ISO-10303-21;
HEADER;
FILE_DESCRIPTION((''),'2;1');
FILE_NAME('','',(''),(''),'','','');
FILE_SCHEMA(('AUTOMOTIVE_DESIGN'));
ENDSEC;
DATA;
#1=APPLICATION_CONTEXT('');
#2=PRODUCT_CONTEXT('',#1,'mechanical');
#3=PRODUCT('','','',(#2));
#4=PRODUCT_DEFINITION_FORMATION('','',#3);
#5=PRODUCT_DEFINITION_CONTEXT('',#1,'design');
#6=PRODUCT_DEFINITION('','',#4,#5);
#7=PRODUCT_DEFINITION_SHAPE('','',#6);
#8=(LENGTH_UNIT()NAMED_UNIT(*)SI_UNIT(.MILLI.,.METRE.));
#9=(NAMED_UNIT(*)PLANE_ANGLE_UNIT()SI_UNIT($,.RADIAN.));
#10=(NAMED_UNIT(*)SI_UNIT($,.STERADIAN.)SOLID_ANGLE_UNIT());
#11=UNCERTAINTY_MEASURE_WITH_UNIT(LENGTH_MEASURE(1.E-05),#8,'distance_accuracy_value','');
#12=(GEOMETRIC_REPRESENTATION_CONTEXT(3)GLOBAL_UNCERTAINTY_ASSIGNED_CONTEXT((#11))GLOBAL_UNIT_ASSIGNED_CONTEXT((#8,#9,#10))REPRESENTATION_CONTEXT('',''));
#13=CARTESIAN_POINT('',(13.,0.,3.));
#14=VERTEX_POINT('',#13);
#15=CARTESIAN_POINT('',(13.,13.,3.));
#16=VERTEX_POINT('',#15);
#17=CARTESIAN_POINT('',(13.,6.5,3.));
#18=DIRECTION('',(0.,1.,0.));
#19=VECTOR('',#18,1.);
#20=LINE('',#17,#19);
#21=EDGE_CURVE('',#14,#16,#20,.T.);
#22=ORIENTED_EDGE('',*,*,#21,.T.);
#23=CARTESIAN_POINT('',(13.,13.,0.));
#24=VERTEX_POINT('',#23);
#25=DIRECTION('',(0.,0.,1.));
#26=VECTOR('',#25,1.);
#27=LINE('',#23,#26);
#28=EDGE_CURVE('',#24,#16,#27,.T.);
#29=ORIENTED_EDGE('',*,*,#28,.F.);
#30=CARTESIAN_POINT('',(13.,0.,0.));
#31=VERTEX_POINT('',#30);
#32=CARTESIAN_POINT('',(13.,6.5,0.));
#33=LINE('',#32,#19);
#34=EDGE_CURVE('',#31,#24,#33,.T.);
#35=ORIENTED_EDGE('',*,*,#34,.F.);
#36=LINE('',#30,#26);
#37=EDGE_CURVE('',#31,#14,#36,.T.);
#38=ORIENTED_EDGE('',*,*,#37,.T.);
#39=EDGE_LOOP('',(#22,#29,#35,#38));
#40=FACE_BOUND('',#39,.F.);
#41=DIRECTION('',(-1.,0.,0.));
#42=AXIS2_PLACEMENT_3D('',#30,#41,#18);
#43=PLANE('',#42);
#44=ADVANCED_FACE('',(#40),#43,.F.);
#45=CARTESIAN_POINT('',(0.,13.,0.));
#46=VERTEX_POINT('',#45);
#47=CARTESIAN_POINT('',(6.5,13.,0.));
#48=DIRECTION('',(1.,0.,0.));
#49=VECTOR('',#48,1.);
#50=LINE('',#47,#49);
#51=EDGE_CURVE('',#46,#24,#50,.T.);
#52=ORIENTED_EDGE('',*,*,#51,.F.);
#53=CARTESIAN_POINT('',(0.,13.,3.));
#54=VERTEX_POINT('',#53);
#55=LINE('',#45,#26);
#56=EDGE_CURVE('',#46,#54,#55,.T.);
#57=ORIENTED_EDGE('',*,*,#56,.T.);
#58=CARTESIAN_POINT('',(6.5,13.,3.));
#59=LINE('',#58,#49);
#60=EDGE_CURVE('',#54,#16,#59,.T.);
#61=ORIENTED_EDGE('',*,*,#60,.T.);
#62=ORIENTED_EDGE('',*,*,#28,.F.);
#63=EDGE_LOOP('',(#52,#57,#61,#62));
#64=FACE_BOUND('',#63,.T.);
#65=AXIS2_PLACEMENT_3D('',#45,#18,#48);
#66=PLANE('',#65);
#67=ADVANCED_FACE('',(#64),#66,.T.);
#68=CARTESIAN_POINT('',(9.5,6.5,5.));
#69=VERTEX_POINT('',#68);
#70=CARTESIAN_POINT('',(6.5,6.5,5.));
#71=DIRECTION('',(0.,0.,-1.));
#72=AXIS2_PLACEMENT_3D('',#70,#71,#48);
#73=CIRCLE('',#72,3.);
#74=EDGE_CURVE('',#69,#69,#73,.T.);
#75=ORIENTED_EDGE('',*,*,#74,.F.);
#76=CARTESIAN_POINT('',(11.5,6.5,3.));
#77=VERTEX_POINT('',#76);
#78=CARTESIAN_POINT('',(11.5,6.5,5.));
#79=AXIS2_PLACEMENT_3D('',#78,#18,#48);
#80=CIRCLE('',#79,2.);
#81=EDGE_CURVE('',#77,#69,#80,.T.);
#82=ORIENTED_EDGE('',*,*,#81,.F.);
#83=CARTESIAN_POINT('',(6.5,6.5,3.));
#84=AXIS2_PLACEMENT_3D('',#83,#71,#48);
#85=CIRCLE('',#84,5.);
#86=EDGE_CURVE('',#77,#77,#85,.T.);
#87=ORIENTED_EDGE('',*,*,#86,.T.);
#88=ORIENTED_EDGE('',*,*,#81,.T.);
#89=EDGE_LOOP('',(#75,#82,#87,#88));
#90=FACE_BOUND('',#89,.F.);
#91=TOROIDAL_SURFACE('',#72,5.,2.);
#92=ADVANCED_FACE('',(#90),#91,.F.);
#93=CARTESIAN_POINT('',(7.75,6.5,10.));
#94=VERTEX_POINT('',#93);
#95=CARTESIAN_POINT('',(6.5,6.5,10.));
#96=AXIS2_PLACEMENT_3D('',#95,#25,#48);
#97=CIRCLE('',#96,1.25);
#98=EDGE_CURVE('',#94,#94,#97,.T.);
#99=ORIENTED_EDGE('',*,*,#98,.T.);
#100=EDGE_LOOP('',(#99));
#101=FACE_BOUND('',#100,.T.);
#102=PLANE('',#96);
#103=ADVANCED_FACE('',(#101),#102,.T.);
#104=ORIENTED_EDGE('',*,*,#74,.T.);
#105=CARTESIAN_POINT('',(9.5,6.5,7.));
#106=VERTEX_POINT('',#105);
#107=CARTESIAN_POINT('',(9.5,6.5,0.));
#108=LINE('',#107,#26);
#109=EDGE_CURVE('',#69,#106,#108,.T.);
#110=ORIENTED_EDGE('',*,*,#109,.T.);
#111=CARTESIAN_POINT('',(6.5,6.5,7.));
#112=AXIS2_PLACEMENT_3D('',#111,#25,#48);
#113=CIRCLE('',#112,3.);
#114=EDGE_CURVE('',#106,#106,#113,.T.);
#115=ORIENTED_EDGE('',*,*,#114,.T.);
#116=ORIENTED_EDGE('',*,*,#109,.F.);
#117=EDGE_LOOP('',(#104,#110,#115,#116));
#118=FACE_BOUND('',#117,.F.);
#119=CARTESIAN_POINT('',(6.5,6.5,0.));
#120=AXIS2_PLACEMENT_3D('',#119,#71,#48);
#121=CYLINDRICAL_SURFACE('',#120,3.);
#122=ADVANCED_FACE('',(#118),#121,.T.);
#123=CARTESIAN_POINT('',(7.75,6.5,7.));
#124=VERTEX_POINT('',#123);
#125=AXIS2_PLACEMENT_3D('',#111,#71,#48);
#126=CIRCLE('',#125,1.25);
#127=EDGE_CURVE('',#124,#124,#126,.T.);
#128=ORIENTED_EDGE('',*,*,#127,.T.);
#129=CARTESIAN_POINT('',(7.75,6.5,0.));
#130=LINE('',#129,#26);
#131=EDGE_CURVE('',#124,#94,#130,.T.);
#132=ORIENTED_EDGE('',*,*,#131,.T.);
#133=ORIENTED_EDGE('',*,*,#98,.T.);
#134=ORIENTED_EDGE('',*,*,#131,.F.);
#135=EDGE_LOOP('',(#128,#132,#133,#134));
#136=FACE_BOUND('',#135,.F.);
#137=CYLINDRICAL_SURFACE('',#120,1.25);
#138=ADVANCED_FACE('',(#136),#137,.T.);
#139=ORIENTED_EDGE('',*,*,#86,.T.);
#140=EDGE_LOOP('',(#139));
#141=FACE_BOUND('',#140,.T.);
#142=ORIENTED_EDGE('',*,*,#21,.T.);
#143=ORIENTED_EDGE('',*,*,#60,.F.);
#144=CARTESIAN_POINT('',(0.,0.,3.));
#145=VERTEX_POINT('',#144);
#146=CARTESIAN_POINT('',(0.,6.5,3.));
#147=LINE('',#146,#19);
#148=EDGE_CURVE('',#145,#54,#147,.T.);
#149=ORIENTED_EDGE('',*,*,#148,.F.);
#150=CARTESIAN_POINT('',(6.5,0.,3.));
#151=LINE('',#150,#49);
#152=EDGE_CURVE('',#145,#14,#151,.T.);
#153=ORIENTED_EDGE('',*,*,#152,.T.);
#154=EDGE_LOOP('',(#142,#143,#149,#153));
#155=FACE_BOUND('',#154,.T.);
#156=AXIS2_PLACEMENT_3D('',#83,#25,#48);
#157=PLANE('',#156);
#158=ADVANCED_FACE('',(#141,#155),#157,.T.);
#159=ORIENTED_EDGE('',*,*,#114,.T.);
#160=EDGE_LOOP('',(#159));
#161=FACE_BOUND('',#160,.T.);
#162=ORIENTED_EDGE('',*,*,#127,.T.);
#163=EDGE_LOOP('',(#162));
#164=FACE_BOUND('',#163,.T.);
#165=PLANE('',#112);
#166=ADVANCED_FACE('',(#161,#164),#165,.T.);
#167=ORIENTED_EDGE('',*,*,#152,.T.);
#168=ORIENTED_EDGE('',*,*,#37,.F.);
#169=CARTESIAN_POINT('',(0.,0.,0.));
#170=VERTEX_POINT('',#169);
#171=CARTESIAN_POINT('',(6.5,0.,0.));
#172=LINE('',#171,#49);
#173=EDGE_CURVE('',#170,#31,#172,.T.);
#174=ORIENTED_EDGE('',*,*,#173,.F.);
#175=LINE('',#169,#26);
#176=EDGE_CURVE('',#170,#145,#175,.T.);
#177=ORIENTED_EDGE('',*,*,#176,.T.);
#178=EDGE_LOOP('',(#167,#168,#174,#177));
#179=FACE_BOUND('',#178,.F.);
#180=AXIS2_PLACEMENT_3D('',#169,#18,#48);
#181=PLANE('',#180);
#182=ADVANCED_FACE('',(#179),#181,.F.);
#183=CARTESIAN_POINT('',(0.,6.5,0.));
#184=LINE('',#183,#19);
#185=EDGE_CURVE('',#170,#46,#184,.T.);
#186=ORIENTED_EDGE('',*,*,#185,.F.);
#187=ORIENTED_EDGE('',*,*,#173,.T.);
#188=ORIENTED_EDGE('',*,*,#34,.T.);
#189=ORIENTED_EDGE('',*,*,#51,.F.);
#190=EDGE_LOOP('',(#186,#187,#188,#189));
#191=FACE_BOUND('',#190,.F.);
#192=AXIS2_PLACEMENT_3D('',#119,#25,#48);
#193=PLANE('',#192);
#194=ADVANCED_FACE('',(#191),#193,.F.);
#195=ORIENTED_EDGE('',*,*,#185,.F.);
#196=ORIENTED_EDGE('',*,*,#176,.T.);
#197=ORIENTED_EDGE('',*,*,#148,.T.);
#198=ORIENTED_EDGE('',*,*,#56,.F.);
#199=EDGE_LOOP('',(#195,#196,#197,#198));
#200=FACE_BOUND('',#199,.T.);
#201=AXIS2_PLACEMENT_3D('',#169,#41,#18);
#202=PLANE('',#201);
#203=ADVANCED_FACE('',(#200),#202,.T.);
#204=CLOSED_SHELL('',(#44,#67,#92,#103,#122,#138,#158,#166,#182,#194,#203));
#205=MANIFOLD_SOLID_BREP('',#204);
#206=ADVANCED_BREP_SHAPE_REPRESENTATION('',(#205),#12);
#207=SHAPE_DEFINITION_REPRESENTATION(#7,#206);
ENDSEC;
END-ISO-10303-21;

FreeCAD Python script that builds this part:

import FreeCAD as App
import Part
import Sketcher

V = App.Vector


def edges_at(feature, points):
    """Names of the edges that pass closest to the given points."""
    edges = feature.Shape.Edges
    near = lambda p: min(range(len(edges)), key=lambda i: edges[i].distToShape(Part.Vertex(*p))[0])
    return sorted({f"Edge{near(p) + 1}" for p in points})


def add_polygon(sketch, points):
    """Adds a closed chain of lines whose ends are joined by coincident constraints."""
    first, n = sketch.GeometryCount, len(points)
    for a, b in zip(points, points[1:] + points[:1]):
        sketch.addGeometry(Part.LineSegment(App.Vector(*a, 0), App.Vector(*b, 0)), False)
    for i in range(n):
        sketch.addConstraint(Sketcher.Constraint("Coincident", first + i, 2, first + (i + 1) % n, 1))

doc = App.newDocument("Part")
body = doc.addObject("PartDesign::Body", "Body")

sketch1 = doc.addObject("Sketcher::SketchObject", "Sketch")
body.addObject(sketch1)
sketch1.AttachmentSupport = (doc.XY_Plane, [""])
sketch1.MapMode = "FlatFace"
add_polygon(sketch1, [(0, 13), (0, 0), (13, 0), (13, 13)])
sketch1.addConstraint([
    Sketcher.Constraint("Vertical", 0),
    Sketcher.Constraint("Horizontal", 1),
    Sketcher.Constraint("Vertical", 2),
    Sketcher.Constraint("Horizontal", 3),
    Sketcher.Constraint("Coincident", 0, 2, -1, 1),
    Sketcher.Constraint("Equal", 3, 0),
    Sketcher.Constraint("DistanceX", 1, 1, 1, 2, 13.0),
])
pad1 = doc.addObject("PartDesign::Pad", "Pad")
body.addObject(pad1)
pad1.Profile = sketch1
pad1.Length = 3

sketch2 = doc.addObject("Sketcher::SketchObject", "Sketch001")
body.addObject(sketch2)
sketch2.AttachmentSupport = (doc.XY_Plane, [""])
sketch2.MapMode = "FlatFace"
sketch2.addGeometry(Part.Circle(V(6.5, 6.5, 0), V(0, 0, 1), 3), False)
sketch2.addConstraint([
    Sketcher.Constraint("Diameter", 0, 6.0),
    Sketcher.Constraint("DistanceX", -1, 1, 0, 3, 6.5),
    Sketcher.Constraint("DistanceY", -1, 1, 0, 3, 6.5),
])
pad2 = doc.addObject("PartDesign::Pad", "Pad001")
body.addObject(pad2)
pad2.Profile = sketch2
pad2.Length = 7

sketch3 = doc.addObject("Sketcher::SketchObject", "Sketch002")
body.addObject(sketch3)
sketch3.AttachmentSupport = (doc.XY_Plane, [""])
sketch3.MapMode = "FlatFace"
sketch3.addGeometry(Part.Circle(V(6.5, 6.5, 0), V(0, 0, 1), 1.2), False)
sketch3.addConstraint([
    Sketcher.Constraint("Diameter", 0, 2.5),
    Sketcher.Constraint("DistanceX", -1, 1, 0, 3, 6.5),
    Sketcher.Constraint("DistanceY", -1, 1, 0, 3, 6.5),
])
pad3 = doc.addObject("PartDesign::Pad", "Pad002")
body.addObject(pad3)
pad3.Profile = sketch3
pad3.Length = 10
doc.recompute()

fillet = doc.addObject("PartDesign::Fillet", "Fillet")
body.addObject(fillet)
fillet.Base = (pad3, edges_at(pad3, [(3.5, 6.5, 3)]))
fillet.Radius = 2

doc.recompute()
